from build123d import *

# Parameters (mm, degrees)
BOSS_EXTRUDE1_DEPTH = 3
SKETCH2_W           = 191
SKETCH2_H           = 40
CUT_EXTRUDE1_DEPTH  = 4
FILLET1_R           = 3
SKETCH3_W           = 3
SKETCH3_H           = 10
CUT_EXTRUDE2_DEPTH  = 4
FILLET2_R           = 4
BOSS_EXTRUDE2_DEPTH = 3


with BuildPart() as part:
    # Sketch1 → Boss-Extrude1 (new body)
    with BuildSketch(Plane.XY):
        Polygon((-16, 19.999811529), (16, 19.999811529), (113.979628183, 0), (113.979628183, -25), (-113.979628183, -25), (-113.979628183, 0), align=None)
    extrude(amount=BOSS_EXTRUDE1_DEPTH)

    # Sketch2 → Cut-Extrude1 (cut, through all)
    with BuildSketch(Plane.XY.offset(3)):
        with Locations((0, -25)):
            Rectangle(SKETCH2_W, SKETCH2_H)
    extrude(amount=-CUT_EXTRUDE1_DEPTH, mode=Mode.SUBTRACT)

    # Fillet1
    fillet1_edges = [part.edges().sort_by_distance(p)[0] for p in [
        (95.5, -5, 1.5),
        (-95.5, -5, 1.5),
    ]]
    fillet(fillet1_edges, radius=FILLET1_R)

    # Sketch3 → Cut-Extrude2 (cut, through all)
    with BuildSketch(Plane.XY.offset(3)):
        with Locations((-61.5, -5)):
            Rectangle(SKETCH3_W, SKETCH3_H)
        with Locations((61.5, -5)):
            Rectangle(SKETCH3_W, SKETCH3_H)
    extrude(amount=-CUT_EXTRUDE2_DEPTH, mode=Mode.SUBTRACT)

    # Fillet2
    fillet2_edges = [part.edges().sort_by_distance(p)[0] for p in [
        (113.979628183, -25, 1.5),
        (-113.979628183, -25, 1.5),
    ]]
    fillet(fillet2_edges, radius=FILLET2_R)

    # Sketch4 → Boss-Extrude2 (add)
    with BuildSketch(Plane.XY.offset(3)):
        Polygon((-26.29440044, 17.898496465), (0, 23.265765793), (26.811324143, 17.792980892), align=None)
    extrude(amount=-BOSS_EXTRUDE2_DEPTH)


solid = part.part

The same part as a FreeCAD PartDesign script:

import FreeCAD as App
import Part
import Sketcher


def edges_at(feature, points):
    """Names of the edges that pass closest to the given points."""
    edges = feature.Shape.Edges
    near = lambda p: min(range(len(edges)), key=lambda i: edges[i].distToShape(Part.Vertex(*p))[0])
    return sorted({f"Edge{near(p) + 1}" for p in points})


def add_polygon(sketch, points):
    """Adds a closed chain of lines whose ends are joined by coincident constraints."""
    first, n = sketch.GeometryCount, len(points)
    for a, b in zip(points, points[1:] + points[:1]):
        sketch.addGeometry(Part.LineSegment(App.Vector(*a, 0), App.Vector(*b, 0)), False)
    for i in range(n):
        sketch.addConstraint(Sketcher.Constraint("Coincident", first + i, 2, first + (i + 1) % n, 1))

doc = App.newDocument("Part")
body = doc.addObject("PartDesign::Body", "Body")

# Sketch on XY plane
sketch1 = body.newObject("Sketcher::SketchObject", "Sketch")
sketch1.AttachmentSupport = (doc.getObject("XY_Plane"), [""])
sketch1.MapMode = "FlatFace"
add_polygon(sketch1, [(16, 19.999812), (-16, 19.999812), (-113.979628, 0), (-113.979628, -25), (113.979628, -25), (113.979628, 0)])  # lines 0-5
sketch1.addConstraint(Sketcher.Constraint("Horizontal", 0))
sketch1.addConstraint(Sketcher.Constraint("Vertical", 2))
sketch1.addConstraint(Sketcher.Constraint("Horizontal", 3))
sketch1.addConstraint(Sketcher.Constraint("Vertical", 4))
sketch1.addConstraint(Sketcher.Constraint("Symmetric", 1, 2, 4, 2, -1, 1))
sketch1.addConstraint(Sketcher.Constraint("PointOnObject", 1, 2, -1))
sketch1.addConstraint(Sketcher.Constraint("Equal", 1, 5))
sketch1.addConstraint(Sketcher.Constraint("DistanceX", 0, 2, 0, 1, 32.0))
sketch1.addConstraint(Sketcher.Constraint("DistanceY", 2, 2, 2, 1, 25.0))
sketch1.addConstraint(Sketcher.Constraint("Distance", 1, 100.0))
sketch1.addConstraint(Sketcher.Constraint("DistanceX", 3, 1, 3, 2, 227.959256))
pad1 = body.newObject("PartDesign::Pad", "Pad")
pad1.Profile = sketch1
pad1.Length = 3

# Sketch on XY plane
sketch2 = body.newObject("Sketcher::SketchObject", "Sketch001")
sketch2.AttachmentSupport = (doc.getObject("XY_Plane"), [""])
sketch2.MapMode = "FlatFace"
sketch2.AttachmentOffset = App.Placement(App.Vector(0, 0, 3), App.Rotation())
add_polygon(sketch2, [(-95.5, -5), (-95.5, -45), (95.5, -45), (95.5, -5)])  # lines 0-3
sketch2.addConstraint(Sketcher.Constraint("Vertical", 0))
sketch2.addConstraint(Sketcher.Constraint("Horizontal", 1))
sketch2.addConstraint(Sketcher.Constraint("Vertical", 2))
sketch2.addConstraint(Sketcher.Constraint("Horizontal", 3))
sketch2.addConstraint(Sketcher.Constraint("DistanceX", 1, 1, 1, 2, 191.0))
sketch2.addConstraint(Sketcher.Constraint("DistanceY", 0, 2, 0, 1, 40.0))
sketch2.addConstraint(Sketcher.Constraint("DistanceY", 0, 2, -1, 1, 45.0))
sketch2.addConstraint(Sketcher.Constraint("DistanceX", 0, 2, -1, 1, 95.5))
pocket1 = body.newObject("PartDesign::Pocket", "Pocket")
pocket1.Profile = sketch2
pocket1.Type = "ThroughAll"
doc.recompute()

fillet = body.newObject("PartDesign::Fillet", "Fillet")
fillet.Base = (pocket1, edges_at(pocket1, [(95.5, -5, 1.5), (-95.5, -5, 1.5)]))
fillet.Radius = 3

# Sketch on XY plane
sketch3 = body.newObject("Sketcher::SketchObject", "Sketch002")
sketch3.AttachmentSupport = (doc.getObject("XY_Plane"), [""])
sketch3.MapMode = "FlatFace"
sketch3.AttachmentOffset = App.Placement(App.Vector(0, 0, 3), App.Rotation())
add_polygon(sketch3, [(-63, 0), (-63, -10), (-60, -10), (-60, 0)])  # lines 0-3
add_polygon(sketch3, [(60, 0), (60, -10), (63, -10), (63, 0)])  # lines 4-7
sketch3.addConstraint(Sketcher.Constraint("Vertical", 0))
sketch3.addConstraint(Sketcher.Constraint("Horizontal", 1))
sketch3.addConstraint(Sketcher.Constraint("Vertical", 2))
sketch3.addConstraint(Sketcher.Constraint("Horizontal", 3))
sketch3.addConstraint(Sketcher.Constraint("Vertical", 4))
sketch3.addConstraint(Sketcher.Constraint("Horizontal", 5))
sketch3.addConstraint(Sketcher.Constraint("Vertical", 6))
sketch3.addConstraint(Sketcher.Constraint("Horizontal", 7))
sketch3.addConstraint(Sketcher.Constraint("Symmetric", 3, 2, 6, 2, -1, 1))
sketch3.addConstraint(Sketcher.Constraint("Symmetric", 1, 2, 4, 2, -2))
sketch3.addConstraint(Sketcher.Constraint("PointOnObject", 2, 2, -1))
sketch3.addConstraint(Sketcher.Constraint("DistanceX", 1, 1, 1, 2, 3.0))
sketch3.addConstraint(Sketcher.Constraint("DistanceY", 0, 2, 0, 1, 10.0))
sketch3.addConstraint(Sketcher.Constraint("DistanceX", 0, 2, -1, 1, 63.0))
pocket2 = body.newObject("PartDesign::Pocket", "Pocket001")
pocket2.Profile = sketch3
pocket2.Type = "ThroughAll"
doc.recompute()

fillet2 = body.newObject("PartDesign::Fillet", "Fillet001")
fillet2.Base = (pocket2, edges_at(pocket2, [(113.98, -25, 1.5), (-113.98, -25, 1.5)]))
fillet2.Radius = 4

# Sketch on XY plane
sketch4 = body.newObject("Sketcher::SketchObject", "Sketch003")
sketch4.AttachmentSupport = (doc.getObject("XY_Plane"), [""])
sketch4.MapMode = "FlatFace"
sketch4.AttachmentOffset = App.Placement(App.Vector(0, 0, 3), App.Rotation())
add_polygon(sketch4, [(0, 23.265766), (-26.2944, 17.898496), (26.811324, 17.792981)])  # lines 0-2
sketch4.addConstraint(Sketcher.Constraint("PointOnObject", 2, 2, -2))
sketch4.addConstraint(Sketcher.Constraint("Distance", 0, 26.8366))
sketch4.addConstraint(Sketcher.Constraint("DistanceX", 0, 2, -1, 1, 26.2944))
sketch4.addConstraint(Sketcher.Constraint("Distance", 1, 53.105829))
sketch4.addConstraint(Sketcher.Constraint("DistanceY", -1, 1, 1, 2, 17.792981))
sketch4.addConstraint(Sketcher.Constraint("Distance", 2, 27.364182))
pad2 = body.newObject("PartDesign::Pad", "Pad001")
pad2.Profile = sketch4
pad2.Length = 3
pad2.Reversed = True

doc.recompute()
